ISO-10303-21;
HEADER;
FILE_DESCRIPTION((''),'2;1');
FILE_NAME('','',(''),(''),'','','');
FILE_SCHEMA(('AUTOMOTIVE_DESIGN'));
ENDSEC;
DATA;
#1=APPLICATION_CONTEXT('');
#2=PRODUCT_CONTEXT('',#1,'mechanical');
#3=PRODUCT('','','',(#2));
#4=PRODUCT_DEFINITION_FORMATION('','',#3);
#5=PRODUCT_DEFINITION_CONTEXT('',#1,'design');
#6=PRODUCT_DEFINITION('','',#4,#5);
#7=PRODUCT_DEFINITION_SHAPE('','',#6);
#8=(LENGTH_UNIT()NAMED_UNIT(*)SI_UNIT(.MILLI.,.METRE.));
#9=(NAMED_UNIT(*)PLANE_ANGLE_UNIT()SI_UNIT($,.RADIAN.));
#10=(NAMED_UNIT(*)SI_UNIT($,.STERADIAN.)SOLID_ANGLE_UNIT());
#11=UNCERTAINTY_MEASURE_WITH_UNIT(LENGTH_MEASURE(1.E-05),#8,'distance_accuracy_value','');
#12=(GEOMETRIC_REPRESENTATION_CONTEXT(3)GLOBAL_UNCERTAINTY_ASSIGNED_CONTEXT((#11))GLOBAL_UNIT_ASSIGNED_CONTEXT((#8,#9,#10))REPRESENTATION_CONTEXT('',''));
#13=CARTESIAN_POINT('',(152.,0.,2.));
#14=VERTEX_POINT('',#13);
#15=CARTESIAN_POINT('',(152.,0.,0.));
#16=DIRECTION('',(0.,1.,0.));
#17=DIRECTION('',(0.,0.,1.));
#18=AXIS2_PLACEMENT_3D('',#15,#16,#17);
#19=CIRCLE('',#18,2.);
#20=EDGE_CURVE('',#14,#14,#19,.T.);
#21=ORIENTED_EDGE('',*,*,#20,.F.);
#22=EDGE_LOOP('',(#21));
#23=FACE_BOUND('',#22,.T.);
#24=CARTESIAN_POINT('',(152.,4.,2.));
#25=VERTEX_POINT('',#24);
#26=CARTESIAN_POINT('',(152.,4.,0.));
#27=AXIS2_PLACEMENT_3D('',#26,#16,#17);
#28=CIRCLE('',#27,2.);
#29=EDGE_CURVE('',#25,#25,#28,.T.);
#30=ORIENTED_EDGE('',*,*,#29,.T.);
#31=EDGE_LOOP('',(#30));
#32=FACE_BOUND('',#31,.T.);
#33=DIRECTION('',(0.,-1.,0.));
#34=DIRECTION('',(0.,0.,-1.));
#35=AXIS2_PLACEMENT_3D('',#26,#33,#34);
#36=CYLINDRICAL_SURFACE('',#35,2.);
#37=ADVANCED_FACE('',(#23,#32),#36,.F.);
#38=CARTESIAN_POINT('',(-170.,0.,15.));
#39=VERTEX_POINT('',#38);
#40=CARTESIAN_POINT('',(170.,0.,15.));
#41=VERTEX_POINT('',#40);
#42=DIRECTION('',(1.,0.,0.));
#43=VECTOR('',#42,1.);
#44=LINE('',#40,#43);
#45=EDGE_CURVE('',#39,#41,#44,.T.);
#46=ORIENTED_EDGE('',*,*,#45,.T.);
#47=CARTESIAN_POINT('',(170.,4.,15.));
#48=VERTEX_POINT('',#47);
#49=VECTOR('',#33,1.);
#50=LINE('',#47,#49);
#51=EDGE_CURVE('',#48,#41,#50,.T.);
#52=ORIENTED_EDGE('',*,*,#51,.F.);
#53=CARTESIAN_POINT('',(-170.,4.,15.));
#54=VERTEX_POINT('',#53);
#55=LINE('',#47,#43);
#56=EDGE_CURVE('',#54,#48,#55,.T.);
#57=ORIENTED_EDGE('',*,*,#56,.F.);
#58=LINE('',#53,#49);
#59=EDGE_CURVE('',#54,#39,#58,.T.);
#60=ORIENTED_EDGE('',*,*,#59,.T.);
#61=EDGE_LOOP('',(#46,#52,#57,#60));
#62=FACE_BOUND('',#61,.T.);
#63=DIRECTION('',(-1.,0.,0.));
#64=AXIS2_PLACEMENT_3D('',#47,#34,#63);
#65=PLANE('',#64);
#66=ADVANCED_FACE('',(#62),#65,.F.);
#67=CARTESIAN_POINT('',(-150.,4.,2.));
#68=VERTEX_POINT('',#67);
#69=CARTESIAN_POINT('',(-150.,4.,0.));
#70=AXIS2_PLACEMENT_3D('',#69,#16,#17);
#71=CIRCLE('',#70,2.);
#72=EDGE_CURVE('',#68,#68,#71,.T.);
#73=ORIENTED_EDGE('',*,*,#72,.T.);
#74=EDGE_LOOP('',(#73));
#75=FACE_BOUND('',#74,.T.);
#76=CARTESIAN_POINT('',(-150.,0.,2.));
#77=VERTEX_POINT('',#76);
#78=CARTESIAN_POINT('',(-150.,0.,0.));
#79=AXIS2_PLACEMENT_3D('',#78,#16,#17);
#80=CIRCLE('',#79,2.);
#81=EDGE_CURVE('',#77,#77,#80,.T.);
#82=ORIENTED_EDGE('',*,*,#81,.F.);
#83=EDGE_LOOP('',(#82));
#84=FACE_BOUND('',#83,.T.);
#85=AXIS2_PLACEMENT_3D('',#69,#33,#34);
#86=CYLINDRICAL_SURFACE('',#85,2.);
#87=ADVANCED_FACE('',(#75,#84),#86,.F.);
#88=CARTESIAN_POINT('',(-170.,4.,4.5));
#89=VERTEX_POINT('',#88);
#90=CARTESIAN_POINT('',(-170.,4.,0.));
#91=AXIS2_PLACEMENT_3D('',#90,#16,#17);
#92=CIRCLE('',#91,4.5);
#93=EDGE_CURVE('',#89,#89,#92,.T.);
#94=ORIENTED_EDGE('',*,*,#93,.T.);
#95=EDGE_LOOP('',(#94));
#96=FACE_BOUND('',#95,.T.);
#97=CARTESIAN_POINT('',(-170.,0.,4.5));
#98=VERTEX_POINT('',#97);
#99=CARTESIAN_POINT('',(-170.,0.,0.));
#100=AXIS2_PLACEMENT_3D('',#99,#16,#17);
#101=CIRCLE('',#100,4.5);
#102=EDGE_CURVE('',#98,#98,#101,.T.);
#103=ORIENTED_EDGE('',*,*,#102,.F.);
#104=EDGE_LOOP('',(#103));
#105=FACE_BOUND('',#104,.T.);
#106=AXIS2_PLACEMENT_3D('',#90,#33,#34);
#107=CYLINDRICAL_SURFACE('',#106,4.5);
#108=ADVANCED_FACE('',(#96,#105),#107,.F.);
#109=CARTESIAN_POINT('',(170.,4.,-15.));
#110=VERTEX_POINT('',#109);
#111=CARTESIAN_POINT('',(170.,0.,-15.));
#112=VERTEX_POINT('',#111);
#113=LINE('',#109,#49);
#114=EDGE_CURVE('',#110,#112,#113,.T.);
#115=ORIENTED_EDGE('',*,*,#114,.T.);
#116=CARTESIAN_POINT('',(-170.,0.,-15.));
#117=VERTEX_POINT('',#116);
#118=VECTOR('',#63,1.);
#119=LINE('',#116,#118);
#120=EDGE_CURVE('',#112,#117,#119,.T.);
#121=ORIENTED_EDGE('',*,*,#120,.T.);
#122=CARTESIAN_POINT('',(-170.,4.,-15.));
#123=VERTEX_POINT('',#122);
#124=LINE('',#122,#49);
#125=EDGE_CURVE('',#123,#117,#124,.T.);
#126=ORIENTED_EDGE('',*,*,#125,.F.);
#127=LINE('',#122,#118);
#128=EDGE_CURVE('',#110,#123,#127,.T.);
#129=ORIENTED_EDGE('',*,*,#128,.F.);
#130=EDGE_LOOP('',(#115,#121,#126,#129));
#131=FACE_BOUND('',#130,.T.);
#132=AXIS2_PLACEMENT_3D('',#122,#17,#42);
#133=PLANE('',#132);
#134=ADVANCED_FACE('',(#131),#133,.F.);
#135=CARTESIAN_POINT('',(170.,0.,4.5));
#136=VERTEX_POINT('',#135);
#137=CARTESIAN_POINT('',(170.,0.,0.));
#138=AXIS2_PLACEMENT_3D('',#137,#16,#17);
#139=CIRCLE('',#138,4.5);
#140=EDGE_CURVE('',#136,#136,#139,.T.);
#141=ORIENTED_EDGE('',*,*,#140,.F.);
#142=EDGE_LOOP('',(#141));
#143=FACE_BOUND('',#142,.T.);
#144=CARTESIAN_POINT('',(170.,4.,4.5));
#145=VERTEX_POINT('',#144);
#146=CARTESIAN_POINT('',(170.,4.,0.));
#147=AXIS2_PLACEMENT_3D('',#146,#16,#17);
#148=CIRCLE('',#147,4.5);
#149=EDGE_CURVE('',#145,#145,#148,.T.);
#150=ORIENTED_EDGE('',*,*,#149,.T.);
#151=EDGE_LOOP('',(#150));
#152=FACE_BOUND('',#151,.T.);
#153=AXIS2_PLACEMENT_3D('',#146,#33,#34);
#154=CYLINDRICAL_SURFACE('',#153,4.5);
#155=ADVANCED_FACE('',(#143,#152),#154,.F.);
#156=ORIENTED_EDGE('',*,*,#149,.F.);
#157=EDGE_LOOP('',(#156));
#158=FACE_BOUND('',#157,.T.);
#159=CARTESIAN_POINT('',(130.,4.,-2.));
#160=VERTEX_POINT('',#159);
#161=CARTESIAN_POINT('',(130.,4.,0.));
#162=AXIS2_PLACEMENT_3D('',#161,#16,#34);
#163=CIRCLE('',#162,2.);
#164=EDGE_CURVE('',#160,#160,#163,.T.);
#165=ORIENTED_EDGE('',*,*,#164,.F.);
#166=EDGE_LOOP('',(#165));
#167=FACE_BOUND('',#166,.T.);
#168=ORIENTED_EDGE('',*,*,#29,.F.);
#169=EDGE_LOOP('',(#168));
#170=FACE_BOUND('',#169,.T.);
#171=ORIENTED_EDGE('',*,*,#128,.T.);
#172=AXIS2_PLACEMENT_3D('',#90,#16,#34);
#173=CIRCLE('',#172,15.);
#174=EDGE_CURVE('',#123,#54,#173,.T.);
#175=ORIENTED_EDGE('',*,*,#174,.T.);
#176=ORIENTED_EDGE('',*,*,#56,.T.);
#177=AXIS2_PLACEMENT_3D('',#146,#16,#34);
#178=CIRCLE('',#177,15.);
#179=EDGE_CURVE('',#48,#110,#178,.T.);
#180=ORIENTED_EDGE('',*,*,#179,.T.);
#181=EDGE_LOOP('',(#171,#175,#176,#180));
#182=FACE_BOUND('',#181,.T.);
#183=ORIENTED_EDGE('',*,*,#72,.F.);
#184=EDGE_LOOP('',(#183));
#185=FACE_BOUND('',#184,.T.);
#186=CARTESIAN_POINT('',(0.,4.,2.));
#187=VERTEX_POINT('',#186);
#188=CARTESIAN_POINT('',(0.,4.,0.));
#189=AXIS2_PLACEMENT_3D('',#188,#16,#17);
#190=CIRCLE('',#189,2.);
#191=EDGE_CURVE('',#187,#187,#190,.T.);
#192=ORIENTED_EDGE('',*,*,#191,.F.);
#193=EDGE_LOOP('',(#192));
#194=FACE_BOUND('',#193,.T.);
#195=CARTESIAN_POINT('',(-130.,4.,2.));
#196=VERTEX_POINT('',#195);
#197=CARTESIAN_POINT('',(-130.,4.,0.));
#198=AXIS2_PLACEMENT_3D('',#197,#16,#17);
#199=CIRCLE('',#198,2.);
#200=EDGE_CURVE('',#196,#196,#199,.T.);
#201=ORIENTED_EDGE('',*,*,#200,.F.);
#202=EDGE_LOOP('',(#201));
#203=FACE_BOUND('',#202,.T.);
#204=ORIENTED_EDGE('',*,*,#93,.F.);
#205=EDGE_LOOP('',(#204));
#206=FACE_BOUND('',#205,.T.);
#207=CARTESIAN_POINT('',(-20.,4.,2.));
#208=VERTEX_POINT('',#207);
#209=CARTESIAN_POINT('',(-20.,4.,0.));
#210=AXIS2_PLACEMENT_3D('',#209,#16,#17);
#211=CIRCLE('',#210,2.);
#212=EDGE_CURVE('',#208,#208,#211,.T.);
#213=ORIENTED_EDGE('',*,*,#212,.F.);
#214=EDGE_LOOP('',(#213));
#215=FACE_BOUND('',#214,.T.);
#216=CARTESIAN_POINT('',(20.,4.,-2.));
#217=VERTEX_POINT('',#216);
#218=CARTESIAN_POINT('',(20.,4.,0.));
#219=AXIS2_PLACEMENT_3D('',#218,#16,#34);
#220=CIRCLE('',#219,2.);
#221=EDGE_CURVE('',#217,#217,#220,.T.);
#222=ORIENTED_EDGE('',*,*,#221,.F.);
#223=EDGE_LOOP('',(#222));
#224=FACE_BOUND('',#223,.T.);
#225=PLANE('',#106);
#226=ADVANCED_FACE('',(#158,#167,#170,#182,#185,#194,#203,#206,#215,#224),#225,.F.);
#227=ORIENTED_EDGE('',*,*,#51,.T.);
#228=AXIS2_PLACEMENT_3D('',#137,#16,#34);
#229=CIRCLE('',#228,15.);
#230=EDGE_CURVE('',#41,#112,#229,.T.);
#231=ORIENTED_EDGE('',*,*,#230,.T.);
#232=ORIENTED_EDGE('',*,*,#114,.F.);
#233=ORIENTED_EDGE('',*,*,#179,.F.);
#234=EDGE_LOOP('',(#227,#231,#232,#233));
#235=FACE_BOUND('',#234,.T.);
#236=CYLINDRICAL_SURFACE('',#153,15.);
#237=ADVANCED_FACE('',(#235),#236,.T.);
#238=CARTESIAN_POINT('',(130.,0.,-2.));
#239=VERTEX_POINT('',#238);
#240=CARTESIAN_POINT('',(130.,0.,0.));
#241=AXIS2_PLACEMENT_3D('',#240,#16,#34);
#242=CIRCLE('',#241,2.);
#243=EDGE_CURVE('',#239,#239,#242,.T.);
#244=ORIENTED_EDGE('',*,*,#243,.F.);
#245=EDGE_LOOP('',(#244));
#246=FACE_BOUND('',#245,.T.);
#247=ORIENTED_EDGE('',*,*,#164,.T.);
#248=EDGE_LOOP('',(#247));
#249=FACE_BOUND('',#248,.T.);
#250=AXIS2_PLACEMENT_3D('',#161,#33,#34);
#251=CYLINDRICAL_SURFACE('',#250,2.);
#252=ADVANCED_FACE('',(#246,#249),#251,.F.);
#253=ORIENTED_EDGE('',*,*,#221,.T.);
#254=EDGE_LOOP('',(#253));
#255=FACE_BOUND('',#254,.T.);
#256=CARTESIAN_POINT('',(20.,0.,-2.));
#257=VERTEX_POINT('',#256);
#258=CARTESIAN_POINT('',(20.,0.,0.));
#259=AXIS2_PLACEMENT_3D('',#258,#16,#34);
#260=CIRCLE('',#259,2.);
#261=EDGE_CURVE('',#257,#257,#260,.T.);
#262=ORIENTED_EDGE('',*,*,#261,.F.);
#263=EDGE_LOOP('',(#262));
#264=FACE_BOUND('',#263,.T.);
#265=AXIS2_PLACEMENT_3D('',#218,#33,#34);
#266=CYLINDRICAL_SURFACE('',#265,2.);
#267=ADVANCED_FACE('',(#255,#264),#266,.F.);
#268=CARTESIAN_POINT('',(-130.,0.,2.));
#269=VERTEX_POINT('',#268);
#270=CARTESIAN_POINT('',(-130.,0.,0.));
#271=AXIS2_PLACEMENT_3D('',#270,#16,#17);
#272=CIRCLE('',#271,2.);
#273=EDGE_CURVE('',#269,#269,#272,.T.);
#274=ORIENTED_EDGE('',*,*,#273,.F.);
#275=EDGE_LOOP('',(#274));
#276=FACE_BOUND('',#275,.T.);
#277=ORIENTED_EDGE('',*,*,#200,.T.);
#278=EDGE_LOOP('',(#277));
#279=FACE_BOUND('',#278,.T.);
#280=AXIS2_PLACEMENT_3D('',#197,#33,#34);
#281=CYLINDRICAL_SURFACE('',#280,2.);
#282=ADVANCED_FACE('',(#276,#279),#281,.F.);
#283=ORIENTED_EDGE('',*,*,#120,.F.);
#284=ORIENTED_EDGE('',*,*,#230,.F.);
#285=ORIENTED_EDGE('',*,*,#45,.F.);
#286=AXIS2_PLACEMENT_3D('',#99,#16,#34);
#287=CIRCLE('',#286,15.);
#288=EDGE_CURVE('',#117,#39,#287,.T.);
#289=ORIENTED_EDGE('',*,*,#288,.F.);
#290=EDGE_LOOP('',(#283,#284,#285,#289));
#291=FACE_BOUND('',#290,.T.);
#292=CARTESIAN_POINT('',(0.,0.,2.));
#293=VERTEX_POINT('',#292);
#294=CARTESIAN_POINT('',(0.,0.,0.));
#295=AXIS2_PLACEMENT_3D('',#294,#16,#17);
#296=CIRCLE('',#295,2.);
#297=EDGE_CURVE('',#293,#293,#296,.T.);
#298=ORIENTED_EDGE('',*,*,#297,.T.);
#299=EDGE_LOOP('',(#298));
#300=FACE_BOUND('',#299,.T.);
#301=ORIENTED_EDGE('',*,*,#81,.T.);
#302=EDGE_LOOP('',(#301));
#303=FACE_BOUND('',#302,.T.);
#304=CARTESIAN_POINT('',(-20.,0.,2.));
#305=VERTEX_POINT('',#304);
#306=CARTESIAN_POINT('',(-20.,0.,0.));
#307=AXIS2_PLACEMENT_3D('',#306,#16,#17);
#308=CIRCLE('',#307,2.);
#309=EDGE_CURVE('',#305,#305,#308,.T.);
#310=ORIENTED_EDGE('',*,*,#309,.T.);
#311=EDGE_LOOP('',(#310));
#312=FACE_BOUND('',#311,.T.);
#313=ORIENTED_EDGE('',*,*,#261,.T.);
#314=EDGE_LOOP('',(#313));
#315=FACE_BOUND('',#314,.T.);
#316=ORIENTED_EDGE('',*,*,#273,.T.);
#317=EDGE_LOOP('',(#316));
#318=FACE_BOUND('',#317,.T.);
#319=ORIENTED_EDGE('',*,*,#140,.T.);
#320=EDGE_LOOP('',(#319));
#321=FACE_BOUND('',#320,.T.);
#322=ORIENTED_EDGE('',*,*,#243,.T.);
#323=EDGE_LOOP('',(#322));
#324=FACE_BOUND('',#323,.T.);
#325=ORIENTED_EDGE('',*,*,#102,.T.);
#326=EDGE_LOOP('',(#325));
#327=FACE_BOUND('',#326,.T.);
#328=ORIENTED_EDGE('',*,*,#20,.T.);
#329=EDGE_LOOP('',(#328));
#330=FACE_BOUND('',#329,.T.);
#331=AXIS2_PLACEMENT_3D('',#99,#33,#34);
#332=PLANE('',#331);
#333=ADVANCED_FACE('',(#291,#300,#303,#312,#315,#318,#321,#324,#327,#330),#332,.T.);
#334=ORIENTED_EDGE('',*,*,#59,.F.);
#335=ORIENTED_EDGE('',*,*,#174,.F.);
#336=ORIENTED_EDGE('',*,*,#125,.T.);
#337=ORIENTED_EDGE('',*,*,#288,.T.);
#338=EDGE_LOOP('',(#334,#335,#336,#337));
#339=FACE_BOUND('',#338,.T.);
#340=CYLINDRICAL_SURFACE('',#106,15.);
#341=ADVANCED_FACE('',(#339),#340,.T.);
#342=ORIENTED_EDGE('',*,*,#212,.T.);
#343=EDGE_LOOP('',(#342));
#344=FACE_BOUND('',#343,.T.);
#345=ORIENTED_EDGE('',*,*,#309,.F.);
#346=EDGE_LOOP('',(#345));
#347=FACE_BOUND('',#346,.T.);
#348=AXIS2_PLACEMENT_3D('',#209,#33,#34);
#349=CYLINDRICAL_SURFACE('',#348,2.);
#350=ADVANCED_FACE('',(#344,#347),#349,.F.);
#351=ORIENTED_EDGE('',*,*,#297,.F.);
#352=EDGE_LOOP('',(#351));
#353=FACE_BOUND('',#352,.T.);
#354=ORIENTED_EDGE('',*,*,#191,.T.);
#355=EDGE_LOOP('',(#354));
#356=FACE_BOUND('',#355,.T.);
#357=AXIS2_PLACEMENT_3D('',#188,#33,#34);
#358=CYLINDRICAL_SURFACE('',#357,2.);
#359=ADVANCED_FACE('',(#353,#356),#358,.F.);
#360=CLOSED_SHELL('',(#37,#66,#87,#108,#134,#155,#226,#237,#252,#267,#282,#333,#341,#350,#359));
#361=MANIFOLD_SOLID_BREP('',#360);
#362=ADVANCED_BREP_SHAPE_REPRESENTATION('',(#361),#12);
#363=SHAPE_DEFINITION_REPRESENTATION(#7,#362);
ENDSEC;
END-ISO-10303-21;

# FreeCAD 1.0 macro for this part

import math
import FreeCAD as App
import Part
import Sketcher
from FreeCAD import Vector

doc = App.newDocument("Part")
body = doc.addObject("PartDesign::Body", "Body")

# Sketch on XZ plane
sketch1 = body.newObject("Sketcher::SketchObject", "Sketch")
sketch1.AttachmentSupport = (doc.getObject("XZ_Plane"), [""])
sketch1.MapMode = "FlatFace"
sketch1.addGeometry(Part.LineSegment(Vector(170, -15, 0), Vector(-170, -15, 0)), False)
sketch1.addGeometry(Part.ArcOfCircle(Part.Circle(Vector(-170, 0, 0), Vector(0, 0, 1), 15), math.radians(90), math.radians(270)), False)
sketch1.addGeometry(Part.LineSegment(Vector(-170, 15, 0), Vector(170, 15, 0)), False)
sketch1.addGeometry(Part.ArcOfCircle(Part.Circle(Vector(170, 0, 0), Vector(0, 0, 1), 15), math.radians(-90), math.radians(90)), False)
sketch1.addGeometry(Part.Circle(Vector(170, 0, 0), Vector(0, 0, 1), 4.5), False)
sketch1.addGeometry(Part.Circle(Vector(152, 0, 0), Vector(0, 0, 1), 2), False)
sketch1.addGeometry(Part.Circle(Vector(130, 0, 0), Vector(0, 0, 1), 2), False)
sketch1.addGeometry(Part.Circle(Vector(20, 0, 0), Vector(0, 0, 1), 2), False)
sketch1.addGeometry(Part.Circle(Vector(0, 0, 0), Vector(0, 0, 1), 2), False)
sketch1.addGeometry(Part.Circle(Vector(-20, 0, 0), Vector(0, 0, 1), 2), False)
sketch1.addGeometry(Part.Circle(Vector(-130, 0, 0), Vector(0, 0, 1), 2), False)
sketch1.addGeometry(Part.Circle(Vector(-150, 0, 0), Vector(0, 0, 1), 2), False)
sketch1.addGeometry(Part.Circle(Vector(-170, 0, 0), Vector(0, 0, 1), 4.5), False)
sketch1.addConstraint(Sketcher.Constraint("Tangent", 0, 2, 1, 2))
sketch1.addConstraint(Sketcher.Constraint("Tangent", 1, 1, 2, 1))
sketch1.addConstraint(Sketcher.Constraint("Tangent", 2, 2, 3, 2))
sketch1.addConstraint(Sketcher.Constraint("Tangent", 3, 1, 0, 1))
sketch1.addConstraint(Sketcher.Constraint("Horizontal", 0))
sketch1.addConstraint(Sketcher.Constraint("Horizontal", 2))
sketch1.addConstraint(Sketcher.Constraint("Coincident", 8, 3, -1, 1))
sketch1.addConstraint(Sketcher.Constraint("Coincident", 4, 3, 3, 3))
sketch1.addConstraint(Sketcher.Constraint("Coincident", 12, 3, 1, 3))
sketch1.addConstraint(Sketcher.Constraint("Equal", 5, 6))
sketch1.addConstraint(Sketcher.Constraint("Equal", 6, 7))
sketch1.addConstraint(Sketcher.Constraint("Equal", 7, 8))
sketch1.addConstraint(Sketcher.Constraint("Equal", 8, 9))
sketch1.addConstraint(Sketcher.Constraint("Equal", 9, 10))
sketch1.addConstraint(Sketcher.Constraint("Equal", 10, 11))
sketch1.addConstraint(Sketcher.Constraint("Equal", 4, 12))
sketch1.addConstraint(Sketcher.Constraint("Symmetric", 1, 3, 3, 3, -1, 1))
sketch1.addConstraint(Sketcher.Constraint("Symmetric", 7, 3, 9, 3, -1, 1))
sketch1.addConstraint(Sketcher.Constraint("Symmetric", 6, 3, 10, 3, -1, 1))
sketch1.addConstraint(Sketcher.Constraint("PointOnObject", 5, 3, -1))
sketch1.addConstraint(Sketcher.Constraint("PointOnObject", 6, 3, -1))
sketch1.addConstraint(Sketcher.Constraint("PointOnObject", 7, 3, -1))
sketch1.addConstraint(Sketcher.Constraint("PointOnObject", 11, 3, -1))
sketch1.addConstraint(Sketcher.Constraint("Diameter", 4, 9.0))
sketch1.addConstraint(Sketcher.Constraint("Diameter", 5, 4.0))
sketch1.addConstraint(Sketcher.Constraint("Radius", 1, 15.0))
sketch1.addConstraint(Sketcher.Constraint("DistanceX", 0, 2, 0, 1, 340.0))
sketch1.addConstraint(Sketcher.Constraint("DistanceX", -1, 1, 5, 3, 152.0))
sketch1.addConstraint(Sketcher.Constraint("DistanceX", -1, 1, 6, 3, 130.0))
sketch1.addConstraint(Sketcher.Constraint("DistanceX", -1, 1, 7, 3, 20.0))
sketch1.addConstraint(Sketcher.Constraint("DistanceX", 11, 3, -1, 1, 150.0))
pad1 = body.newObject("PartDesign::Pad", "Pad")
pad1.Profile = sketch1
pad1.Length = 4
pad1.Reversed = True

doc.recompute()
